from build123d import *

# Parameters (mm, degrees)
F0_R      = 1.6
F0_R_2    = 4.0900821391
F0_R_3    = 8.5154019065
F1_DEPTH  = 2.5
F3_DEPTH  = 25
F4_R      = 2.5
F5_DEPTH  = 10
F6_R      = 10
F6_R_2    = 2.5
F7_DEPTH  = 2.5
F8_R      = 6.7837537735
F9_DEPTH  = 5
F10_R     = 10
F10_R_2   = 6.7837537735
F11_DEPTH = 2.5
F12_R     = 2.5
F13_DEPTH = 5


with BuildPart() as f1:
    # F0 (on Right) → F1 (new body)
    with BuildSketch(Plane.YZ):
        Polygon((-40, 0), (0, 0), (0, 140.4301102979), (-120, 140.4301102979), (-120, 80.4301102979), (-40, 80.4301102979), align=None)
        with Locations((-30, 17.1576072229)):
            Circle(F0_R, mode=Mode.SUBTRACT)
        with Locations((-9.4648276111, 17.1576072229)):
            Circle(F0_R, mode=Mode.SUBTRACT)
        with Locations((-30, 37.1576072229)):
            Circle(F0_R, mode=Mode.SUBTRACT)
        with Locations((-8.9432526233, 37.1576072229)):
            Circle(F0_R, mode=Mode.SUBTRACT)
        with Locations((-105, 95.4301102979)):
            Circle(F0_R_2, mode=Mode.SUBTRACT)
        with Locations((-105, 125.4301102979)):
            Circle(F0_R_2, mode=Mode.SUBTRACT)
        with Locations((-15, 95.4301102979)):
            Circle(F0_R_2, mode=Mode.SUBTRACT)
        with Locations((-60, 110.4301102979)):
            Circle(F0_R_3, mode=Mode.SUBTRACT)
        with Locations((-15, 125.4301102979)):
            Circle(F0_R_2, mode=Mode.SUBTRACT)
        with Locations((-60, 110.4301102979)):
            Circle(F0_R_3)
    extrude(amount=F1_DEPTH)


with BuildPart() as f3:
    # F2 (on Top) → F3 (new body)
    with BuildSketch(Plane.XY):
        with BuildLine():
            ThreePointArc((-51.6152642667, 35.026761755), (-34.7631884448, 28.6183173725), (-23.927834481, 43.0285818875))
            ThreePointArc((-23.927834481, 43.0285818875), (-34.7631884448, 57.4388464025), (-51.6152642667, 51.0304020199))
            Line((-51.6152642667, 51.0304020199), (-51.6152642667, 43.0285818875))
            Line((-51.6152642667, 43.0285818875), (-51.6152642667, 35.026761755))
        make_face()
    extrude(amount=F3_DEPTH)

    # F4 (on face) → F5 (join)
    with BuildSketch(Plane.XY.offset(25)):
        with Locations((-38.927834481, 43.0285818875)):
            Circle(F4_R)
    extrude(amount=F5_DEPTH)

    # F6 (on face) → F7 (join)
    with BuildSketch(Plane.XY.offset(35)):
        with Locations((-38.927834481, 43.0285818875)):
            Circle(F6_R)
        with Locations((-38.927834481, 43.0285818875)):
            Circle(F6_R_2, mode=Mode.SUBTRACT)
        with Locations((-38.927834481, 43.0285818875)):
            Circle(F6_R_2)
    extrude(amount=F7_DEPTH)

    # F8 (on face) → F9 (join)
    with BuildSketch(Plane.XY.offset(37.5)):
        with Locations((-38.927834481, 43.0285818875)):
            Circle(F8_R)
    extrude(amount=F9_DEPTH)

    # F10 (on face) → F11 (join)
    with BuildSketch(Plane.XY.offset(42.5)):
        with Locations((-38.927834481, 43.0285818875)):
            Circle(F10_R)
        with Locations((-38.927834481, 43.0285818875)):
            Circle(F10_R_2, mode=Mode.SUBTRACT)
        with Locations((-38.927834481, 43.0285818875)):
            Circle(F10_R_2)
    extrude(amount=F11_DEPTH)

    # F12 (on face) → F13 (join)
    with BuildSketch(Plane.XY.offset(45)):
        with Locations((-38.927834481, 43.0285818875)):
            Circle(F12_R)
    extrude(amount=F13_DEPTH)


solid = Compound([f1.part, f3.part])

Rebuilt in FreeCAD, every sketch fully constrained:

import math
import FreeCAD as App
import Part
import Sketcher
from FreeCAD import Vector
Q = App.Units.Quantity


def add_polygon(sketch, points):
    """Adds a closed chain of lines whose ends are joined by coincident constraints."""
    first, n = sketch.GeometryCount, len(points)
    for a, b in zip(points, points[1:] + points[:1]):
        sketch.addGeometry(Part.LineSegment(App.Vector(*a, 0), App.Vector(*b, 0)), False)
    for i in range(n):
        sketch.addConstraint(Sketcher.Constraint("Coincident", first + i, 2, first + (i + 1) % n, 1))

doc = App.newDocument("Part")
body = doc.addObject("PartDesign::Body", "Body")

sketch1 = body.newObject("Sketcher::SketchObject", "Sketch")
sketch1.AttachmentSupport = (doc.getObject("YZ_Plane"), [""])
sketch1.MapMode = "FlatFace"
add_polygon(sketch1, [(-40, 0), (0, 0), (0, 140.4), (-120, 140.4), (-120, 80.4), (-40, 80.4)])
sketch1.addGeometry(Part.Circle(Vector(-30, 17.2, 0), Vector(0, 0, 1), 1.6), False)
sketch1.addGeometry(Part.Circle(Vector(-9.5, 17.2, 0), Vector(0, 0, 1), 1.6), False)
sketch1.addGeometry(Part.Circle(Vector(-30, 37.2, 0), Vector(0, 0, 1), 1.6), False)
sketch1.addGeometry(Part.Circle(Vector(-8.9, 37.2, 0), Vector(0, 0, 1), 1.6), False)
sketch1.addGeometry(Part.Circle(Vector(-105, 95.4, 0), Vector(0, 0, 1), 4.1), False)
sketch1.addGeometry(Part.Circle(Vector(-105, 125.4, 0), Vector(0, 0, 1), 4.1), False)
sketch1.addGeometry(Part.Circle(Vector(-15, 95.4, 0), Vector(0, 0, 1), 4.1), False)
sketch1.addGeometry(Part.Circle(Vector(-15, 125.4, 0), Vector(0, 0, 1), 4.1), False)
sketch1.addConstraint([
    Sketcher.Constraint("Horizontal", 0),
    Sketcher.Constraint("Vertical", 1),
    Sketcher.Constraint("Horizontal", 2),
    Sketcher.Constraint("Vertical", 3),
    Sketcher.Constraint("Horizontal", 4),
    Sketcher.Constraint("Vertical", 5),
    Sketcher.Constraint("Coincident", 0, 2, -1, 1),
    Sketcher.Constraint("Equal", 6, 7),
    Sketcher.Constraint("Equal", 7, 8),
    Sketcher.Constraint("Equal", 8, 9),
    Sketcher.Constraint("Equal", 10, 11),
    Sketcher.Constraint("Equal", 11, 12),
    Sketcher.Constraint("Equal", 12, 13),
    Sketcher.Constraint("Horizontal", 6, 3, 7, 3),
    Sketcher.Constraint("Horizontal", 8, 3, 9, 3),
    Sketcher.Constraint("Horizontal", 10, 3, 12, 3),
    Sketcher.Constraint("Horizontal", 11, 3, 13, 3),
    Sketcher.Constraint("Vertical", 6, 3, 8, 3),
    Sketcher.Constraint("Vertical", 10, 3, 11, 3),
    Sketcher.Constraint("Vertical", 12, 3, 13, 3),
    Sketcher.Constraint("Diameter", 6, Q("3.2 mm")),
    Sketcher.Constraint("DistanceX", 0, 1, 0, 2, Q("40 mm")),
    Sketcher.Constraint("DistanceX", 2, 2, 2, 1, Q("120 mm")),
    Sketcher.Constraint("DistanceY", 3, 2, 3, 1, Q("60 mm")),
    Sketcher.Constraint("DistanceX", 6, 3, -1, 1, Q("30 mm")),
    Sketcher.Constraint("DistanceX", 10, 3, -1, 1, Q("105 mm")),
    Sketcher.Constraint("DistanceX", 12, 3, -1, 1, Q("15 mm")),
    Sketcher.Constraint("DistanceY", 6, 3, 8, 3, Q("20 mm")),
    Sketcher.Constraint("DistanceY", 10, 3, 11, 3, Q("30 mm")),
    Sketcher.Constraint("DistanceY", 13, 3, 1, 2, Q("15 mm")),
    Sketcher.Constraint("Diameter", 10, Q("8.180164 mm")),
    Sketcher.Constraint("DistanceY", 1, 1, 1, 2, Q("140.43011 mm")),
    Sketcher.Constraint("DistanceY", -1, 1, 6, 3, Q("17.157607 mm")),
    Sketcher.Constraint("DistanceX", 7, 3, -1, 1, Q("9.464828 mm")),
    Sketcher.Constraint("DistanceX", 9, 3, -1, 1, Q("8.943253 mm")),
])
pad1 = body.newObject("PartDesign::Pad", "Pad")
pad1.Profile = sketch1
pad1.Length = 2.5
body2 = doc.addObject("PartDesign::Body", "Body001")

sketch2 = body2.newObject("Sketcher::SketchObject", "Sketch001")
sketch2.AttachmentSupport = (doc.getObject("XY_Plane001"), [""])
sketch2.MapMode = "FlatFace"
sketch2.addGeometry([
    Part.ArcOfCircle(Part.Circle(Vector(-39, 43, 0), Vector(0, 0, 1), 15), math.radians(-148), math.radians(0)),
    Part.ArcOfCircle(Part.Circle(Vector(-39, 43, 0), Vector(0, 0, 1), 15), math.radians(0), math.radians(148)),
    Part.LineSegment(Vector(-52, 51, 0), Vector(-52, 35, 0)),
], False)
sketch2.addConstraint([
    Sketcher.Constraint("Tangent", 0, 2, 1, 1),
    Sketcher.Constraint("Coincident", 1, 2, 2, 1),
    Sketcher.Constraint("Coincident", 2, 2, 0, 1),
    Sketcher.Constraint("Vertical", 2),
    Sketcher.Constraint("Equal", 0, 1),
    Sketcher.Constraint("Horizontal", 1, 3, 0, 2),
    Sketcher.Constraint("Radius", 0, Q("15 mm")),
    Sketcher.Constraint("DistanceY", 2, 2, 2, 1, Q("16.00364 mm")),
    Sketcher.Constraint("DistanceY", -1, 1, 0, 3, Q("43.028582 mm")),
    Sketcher.Constraint("DistanceX", 0, 3, -1, 1, Q("38.927834 mm")),
])
pad2 = body2.newObject("PartDesign::Pad", "Pad001")
pad2.Profile = sketch2
pad2.Length = 25

sketch3 = body2.newObject("Sketcher::SketchObject", "Sketch002")
sketch3.AttachmentSupport = (doc.getObject("XY_Plane001"), [""])
sketch3.MapMode = "FlatFace"
sketch3.AttachmentOffset = App.Placement(Vector(0, 0, 25), App.Rotation())
sketch3.addGeometry(Part.Circle(Vector(-38.9, 43, 0), Vector(0, 0, 1), 2.5), False)
sketch3.addConstraint([
    Sketcher.Constraint("Diameter", 0, Q("5 mm")),
    Sketcher.Constraint("DistanceY", -1, 1, 0, 3, Q("43.028582 mm")),
    Sketcher.Constraint("DistanceX", 0, 3, -1, 1, Q("38.927834 mm")),
])
pad3 = body2.newObject("PartDesign::Pad", "Pad002")
pad3.Profile = sketch3
pad3.Length = 10

sketch4 = body2.newObject("Sketcher::SketchObject", "Sketch003")
sketch4.AttachmentSupport = (doc.getObject("XY_Plane001"), [""])
sketch4.MapMode = "FlatFace"
sketch4.AttachmentOffset = App.Placement(Vector(0, 0, 35), App.Rotation())
sketch4.addGeometry(Part.Circle(Vector(-39, 43, 0), Vector(0, 0, 1), 10), False)
sketch4.addConstraint([
    Sketcher.Constraint("Diameter", 0, Q("20 mm")),
    Sketcher.Constraint("DistanceY", -1, 1, 0, 3, Q("43.028582 mm")),
    Sketcher.Constraint("DistanceX", 0, 3, -1, 1, Q("38.927834 mm")),
])
pad4 = body2.newObject("PartDesign::Pad", "Pad003")
pad4.Profile = sketch4
pad4.Length = 2.5

sketch5 = body2.newObject("Sketcher::SketchObject", "Sketch004")
sketch5.AttachmentSupport = (doc.getObject("XY_Plane001"), [""])
sketch5.MapMode = "FlatFace"
sketch5.AttachmentOffset = App.Placement(Vector(0, 0, 37.5), App.Rotation())
sketch5.addGeometry(Part.Circle(Vector(-39, 43, 0), Vector(0, 0, 1), 7), False)
sketch5.addConstraint([
    Sketcher.Constraint("Diameter", 0, Q("13.567508 mm")),
    Sketcher.Constraint("DistanceY", -1, 1, 0, 3, Q("43.028582 mm")),
    Sketcher.Constraint("DistanceX", 0, 3, -1, 1, Q("38.927834 mm")),
])
pad5 = body2.newObject("PartDesign::Pad", "Pad004")
pad5.Profile = sketch5
pad5.Length = 5

sketch6 = body2.newObject("Sketcher::SketchObject", "Sketch005")
sketch6.AttachmentSupport = (doc.getObject("XY_Plane001"), [""])
sketch6.MapMode = "FlatFace"
sketch6.AttachmentOffset = App.Placement(Vector(0, 0, 42.5), App.Rotation())
sketch6.addGeometry(Part.Circle(Vector(-39, 43, 0), Vector(0, 0, 1), 10), False)
sketch6.addConstraint([
    Sketcher.Constraint("Diameter", 0, Q("20 mm")),
    Sketcher.Constraint("DistanceY", -1, 1, 0, 3, Q("43.028582 mm")),
    Sketcher.Constraint("DistanceX", 0, 3, -1, 1, Q("38.927834 mm")),
])
pad6 = body2.newObject("PartDesign::Pad", "Pad005")
pad6.Profile = sketch6
pad6.Length = 2.5

sketch7 = body2.newObject("Sketcher::SketchObject", "Sketch006")
sketch7.AttachmentSupport = (doc.getObject("XY_Plane001"), [""])
sketch7.MapMode = "FlatFace"
sketch7.AttachmentOffset = App.Placement(Vector(0, 0, 45), App.Rotation())
sketch7.addGeometry(Part.Circle(Vector(-38.9, 43, 0), Vector(0, 0, 1), 2.5), False)
sketch7.addConstraint([
    Sketcher.Constraint("Diameter", 0, Q("5 mm")),
    Sketcher.Constraint("DistanceY", -1, 1, 0, 3, Q("43.028582 mm")),
    Sketcher.Constraint("DistanceX", 0, 3, -1, 1, Q("38.927834 mm")),
])
pad7 = body2.newObject("PartDesign::Pad", "Pad006")
pad7.Profile = sketch7
pad7.Length = 5

doc.recompute()
